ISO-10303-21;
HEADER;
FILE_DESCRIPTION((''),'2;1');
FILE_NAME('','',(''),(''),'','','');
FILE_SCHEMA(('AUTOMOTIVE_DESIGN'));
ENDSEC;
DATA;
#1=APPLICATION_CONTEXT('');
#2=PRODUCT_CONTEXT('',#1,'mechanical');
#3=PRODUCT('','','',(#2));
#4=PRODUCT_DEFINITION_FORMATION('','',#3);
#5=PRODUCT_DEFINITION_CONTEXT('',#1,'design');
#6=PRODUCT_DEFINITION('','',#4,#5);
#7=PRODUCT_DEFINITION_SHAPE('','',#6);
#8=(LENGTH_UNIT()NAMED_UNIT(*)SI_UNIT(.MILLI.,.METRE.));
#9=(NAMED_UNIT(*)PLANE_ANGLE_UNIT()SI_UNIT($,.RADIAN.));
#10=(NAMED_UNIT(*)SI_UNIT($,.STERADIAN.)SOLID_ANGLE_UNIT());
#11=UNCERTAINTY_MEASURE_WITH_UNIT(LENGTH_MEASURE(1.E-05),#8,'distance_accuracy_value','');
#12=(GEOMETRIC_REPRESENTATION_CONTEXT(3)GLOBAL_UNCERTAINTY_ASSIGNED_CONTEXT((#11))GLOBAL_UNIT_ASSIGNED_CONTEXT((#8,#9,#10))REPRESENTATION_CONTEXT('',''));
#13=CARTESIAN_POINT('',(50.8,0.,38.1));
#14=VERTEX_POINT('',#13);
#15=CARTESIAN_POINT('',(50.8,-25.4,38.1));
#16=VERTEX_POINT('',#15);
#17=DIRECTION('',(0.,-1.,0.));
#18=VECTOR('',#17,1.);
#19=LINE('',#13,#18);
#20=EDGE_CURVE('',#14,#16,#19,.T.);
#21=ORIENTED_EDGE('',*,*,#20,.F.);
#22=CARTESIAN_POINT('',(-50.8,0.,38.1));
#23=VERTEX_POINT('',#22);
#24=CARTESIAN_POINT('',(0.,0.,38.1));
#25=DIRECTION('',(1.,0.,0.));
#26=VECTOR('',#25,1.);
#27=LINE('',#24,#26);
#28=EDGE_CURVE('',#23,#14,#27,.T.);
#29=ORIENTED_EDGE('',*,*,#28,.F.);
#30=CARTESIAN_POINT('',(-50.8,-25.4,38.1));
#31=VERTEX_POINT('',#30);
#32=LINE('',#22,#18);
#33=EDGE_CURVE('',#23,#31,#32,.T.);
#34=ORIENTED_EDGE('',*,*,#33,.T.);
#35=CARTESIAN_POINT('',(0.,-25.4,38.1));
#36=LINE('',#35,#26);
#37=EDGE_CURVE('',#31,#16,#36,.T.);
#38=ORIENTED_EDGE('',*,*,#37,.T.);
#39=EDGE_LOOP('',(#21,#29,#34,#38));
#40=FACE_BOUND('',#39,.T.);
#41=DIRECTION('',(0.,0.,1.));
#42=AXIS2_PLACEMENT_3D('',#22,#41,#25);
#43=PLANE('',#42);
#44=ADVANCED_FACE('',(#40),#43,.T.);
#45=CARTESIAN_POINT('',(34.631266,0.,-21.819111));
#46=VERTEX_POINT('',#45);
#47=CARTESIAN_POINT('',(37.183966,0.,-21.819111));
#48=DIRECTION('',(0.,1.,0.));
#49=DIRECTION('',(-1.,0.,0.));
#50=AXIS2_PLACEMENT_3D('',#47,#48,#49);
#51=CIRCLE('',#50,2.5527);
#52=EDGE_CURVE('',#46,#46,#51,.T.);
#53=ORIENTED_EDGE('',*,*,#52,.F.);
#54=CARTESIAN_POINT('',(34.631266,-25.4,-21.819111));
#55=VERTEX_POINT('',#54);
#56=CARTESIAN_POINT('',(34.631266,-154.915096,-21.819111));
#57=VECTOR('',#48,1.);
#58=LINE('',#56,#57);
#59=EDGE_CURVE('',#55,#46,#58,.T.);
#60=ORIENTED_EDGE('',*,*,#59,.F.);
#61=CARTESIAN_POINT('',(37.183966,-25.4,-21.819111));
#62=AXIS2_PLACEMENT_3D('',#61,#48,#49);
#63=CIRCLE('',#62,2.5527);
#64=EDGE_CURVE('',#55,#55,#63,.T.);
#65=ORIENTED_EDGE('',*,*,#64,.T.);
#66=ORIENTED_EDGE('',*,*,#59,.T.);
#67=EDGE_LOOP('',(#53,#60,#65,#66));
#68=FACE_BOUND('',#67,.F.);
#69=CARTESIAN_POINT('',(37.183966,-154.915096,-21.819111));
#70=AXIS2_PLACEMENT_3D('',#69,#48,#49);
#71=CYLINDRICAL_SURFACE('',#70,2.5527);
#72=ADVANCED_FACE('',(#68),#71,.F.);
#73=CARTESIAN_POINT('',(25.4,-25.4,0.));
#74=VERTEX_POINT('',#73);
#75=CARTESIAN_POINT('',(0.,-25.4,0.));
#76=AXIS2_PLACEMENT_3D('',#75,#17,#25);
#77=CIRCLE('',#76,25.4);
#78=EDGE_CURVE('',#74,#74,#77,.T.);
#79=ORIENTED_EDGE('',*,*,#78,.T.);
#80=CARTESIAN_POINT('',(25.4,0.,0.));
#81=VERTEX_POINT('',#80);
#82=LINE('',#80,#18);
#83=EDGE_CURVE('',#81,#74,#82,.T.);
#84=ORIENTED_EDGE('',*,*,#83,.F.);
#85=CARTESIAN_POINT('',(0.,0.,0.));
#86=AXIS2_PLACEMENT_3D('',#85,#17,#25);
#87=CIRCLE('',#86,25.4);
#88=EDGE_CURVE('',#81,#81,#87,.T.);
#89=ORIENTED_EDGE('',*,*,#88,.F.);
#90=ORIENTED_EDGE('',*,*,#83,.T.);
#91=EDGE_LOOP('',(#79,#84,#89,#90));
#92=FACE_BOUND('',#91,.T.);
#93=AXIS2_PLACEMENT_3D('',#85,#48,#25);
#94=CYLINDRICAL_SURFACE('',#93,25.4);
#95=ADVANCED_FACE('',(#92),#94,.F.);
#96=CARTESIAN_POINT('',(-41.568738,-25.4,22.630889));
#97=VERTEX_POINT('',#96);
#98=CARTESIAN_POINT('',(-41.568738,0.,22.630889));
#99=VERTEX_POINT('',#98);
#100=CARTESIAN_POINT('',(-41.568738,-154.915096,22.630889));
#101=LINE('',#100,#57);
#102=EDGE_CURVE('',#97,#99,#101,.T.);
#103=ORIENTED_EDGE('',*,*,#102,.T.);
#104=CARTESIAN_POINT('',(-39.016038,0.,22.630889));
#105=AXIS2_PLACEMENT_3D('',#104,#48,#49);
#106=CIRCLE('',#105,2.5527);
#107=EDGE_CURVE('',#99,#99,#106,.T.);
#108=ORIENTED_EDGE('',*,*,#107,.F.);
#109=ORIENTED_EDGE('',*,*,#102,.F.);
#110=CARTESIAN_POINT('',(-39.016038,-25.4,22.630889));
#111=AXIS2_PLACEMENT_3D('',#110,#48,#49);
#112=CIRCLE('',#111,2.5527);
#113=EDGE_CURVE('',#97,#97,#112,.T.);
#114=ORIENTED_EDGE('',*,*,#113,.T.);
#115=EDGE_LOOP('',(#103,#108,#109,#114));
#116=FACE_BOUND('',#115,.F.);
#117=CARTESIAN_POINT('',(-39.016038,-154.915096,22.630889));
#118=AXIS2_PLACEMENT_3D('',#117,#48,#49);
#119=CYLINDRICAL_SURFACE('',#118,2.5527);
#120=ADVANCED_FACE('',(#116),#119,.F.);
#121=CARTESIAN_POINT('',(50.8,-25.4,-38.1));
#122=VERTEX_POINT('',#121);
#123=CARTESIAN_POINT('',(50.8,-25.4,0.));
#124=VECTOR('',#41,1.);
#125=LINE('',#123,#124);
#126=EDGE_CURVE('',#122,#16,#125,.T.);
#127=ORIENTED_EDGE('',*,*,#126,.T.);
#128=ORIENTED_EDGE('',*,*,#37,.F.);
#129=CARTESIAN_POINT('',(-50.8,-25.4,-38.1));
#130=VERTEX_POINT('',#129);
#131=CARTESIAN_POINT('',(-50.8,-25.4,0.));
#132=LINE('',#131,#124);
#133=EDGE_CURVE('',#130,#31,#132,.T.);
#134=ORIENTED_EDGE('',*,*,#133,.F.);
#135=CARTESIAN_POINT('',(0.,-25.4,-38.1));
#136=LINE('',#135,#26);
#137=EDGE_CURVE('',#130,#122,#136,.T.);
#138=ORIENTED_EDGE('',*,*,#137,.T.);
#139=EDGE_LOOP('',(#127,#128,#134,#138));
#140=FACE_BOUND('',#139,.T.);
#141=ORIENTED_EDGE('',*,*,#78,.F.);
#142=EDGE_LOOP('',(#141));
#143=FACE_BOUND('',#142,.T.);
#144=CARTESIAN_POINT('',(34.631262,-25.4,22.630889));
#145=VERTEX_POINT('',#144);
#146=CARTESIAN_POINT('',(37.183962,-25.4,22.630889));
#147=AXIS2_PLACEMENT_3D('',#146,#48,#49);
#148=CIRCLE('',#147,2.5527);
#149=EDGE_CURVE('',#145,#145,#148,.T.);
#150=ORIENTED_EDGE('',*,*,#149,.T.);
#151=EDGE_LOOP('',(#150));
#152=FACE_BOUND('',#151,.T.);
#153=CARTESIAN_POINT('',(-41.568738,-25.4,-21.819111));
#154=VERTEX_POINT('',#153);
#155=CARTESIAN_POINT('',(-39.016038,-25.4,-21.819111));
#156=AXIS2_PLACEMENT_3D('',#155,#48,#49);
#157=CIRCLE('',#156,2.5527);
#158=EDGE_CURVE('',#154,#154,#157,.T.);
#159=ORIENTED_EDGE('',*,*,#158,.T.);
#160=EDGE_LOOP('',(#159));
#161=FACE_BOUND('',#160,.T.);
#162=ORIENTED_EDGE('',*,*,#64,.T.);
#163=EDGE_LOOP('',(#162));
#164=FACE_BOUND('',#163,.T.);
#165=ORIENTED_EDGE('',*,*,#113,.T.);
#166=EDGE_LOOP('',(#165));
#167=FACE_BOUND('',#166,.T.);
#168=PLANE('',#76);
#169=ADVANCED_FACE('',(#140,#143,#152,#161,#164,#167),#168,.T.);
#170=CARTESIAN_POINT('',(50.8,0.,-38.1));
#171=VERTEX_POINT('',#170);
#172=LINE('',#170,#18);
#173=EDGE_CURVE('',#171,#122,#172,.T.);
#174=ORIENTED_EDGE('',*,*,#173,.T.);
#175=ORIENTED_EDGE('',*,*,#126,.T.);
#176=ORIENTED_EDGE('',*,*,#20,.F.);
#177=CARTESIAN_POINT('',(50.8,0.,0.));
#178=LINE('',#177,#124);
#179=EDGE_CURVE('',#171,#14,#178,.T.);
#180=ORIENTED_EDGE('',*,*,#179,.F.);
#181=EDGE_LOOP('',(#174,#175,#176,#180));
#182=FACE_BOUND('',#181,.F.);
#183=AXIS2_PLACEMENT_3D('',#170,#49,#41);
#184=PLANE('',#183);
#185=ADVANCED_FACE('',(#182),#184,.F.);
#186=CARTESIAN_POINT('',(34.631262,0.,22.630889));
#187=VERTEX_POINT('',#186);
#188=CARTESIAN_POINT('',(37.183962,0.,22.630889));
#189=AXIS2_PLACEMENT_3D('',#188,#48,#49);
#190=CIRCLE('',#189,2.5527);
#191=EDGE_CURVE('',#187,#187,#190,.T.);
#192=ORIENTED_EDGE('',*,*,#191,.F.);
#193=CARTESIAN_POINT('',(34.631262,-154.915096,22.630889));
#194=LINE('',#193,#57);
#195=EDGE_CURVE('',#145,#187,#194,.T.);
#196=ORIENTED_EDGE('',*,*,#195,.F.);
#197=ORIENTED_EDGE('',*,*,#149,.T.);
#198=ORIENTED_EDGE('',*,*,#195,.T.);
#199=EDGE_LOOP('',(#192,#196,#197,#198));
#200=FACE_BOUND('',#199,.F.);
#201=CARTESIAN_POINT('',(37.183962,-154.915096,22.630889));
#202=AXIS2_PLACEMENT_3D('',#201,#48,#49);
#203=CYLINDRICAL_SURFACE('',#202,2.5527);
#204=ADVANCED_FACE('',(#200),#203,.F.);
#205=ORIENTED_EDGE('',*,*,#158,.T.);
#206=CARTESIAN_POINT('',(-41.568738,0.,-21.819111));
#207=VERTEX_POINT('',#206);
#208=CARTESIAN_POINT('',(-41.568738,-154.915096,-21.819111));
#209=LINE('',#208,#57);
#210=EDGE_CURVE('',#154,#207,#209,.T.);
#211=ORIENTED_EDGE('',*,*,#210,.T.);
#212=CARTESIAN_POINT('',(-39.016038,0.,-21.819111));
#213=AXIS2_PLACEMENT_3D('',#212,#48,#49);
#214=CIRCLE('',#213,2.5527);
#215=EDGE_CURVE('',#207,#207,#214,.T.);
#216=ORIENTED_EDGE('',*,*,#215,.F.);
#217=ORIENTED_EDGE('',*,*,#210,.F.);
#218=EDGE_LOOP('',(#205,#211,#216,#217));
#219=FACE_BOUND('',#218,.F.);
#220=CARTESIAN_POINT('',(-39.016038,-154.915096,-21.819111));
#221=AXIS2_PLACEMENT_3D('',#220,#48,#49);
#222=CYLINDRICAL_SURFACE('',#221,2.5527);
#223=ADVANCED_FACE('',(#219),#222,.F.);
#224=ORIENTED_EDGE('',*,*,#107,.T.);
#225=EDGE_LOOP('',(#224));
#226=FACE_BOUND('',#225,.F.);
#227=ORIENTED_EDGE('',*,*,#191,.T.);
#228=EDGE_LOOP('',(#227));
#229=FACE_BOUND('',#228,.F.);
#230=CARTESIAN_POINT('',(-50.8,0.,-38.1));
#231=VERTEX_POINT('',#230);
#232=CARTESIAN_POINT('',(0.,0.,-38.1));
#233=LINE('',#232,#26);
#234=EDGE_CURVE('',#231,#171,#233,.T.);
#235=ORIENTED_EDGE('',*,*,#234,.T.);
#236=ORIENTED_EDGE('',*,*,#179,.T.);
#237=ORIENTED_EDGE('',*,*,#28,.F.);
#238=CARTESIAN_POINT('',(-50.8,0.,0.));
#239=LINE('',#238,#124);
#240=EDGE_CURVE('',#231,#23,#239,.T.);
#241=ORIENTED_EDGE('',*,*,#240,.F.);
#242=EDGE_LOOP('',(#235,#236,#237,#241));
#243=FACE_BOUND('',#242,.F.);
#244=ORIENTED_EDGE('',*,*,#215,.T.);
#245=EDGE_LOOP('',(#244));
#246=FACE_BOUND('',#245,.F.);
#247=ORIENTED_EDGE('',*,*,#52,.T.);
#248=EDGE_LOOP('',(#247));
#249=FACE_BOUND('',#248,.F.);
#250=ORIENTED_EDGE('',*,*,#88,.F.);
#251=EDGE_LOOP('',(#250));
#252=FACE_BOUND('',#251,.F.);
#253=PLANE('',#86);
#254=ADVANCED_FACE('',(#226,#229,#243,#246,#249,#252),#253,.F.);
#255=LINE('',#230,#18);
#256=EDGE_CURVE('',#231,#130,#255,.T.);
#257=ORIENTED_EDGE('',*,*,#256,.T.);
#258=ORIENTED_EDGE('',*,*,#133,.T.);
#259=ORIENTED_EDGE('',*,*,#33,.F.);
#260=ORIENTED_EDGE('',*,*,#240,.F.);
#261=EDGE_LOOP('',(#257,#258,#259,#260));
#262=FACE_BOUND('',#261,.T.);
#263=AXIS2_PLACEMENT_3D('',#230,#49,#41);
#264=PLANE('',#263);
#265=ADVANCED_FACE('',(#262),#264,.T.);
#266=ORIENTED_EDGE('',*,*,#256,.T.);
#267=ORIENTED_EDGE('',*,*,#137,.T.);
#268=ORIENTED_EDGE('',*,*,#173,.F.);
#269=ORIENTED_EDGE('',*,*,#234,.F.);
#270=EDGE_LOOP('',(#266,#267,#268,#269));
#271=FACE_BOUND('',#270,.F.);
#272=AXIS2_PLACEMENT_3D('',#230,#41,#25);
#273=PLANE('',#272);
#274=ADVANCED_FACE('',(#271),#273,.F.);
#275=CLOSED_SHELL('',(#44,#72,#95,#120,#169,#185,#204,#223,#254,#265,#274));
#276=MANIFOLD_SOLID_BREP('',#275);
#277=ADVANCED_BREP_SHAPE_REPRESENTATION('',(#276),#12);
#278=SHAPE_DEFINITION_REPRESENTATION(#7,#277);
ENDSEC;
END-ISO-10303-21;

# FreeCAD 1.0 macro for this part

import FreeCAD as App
import Part
import Sketcher

V = App.Vector
Q = App.Units.Quantity


def add_polygon(sketch, points):
    """Adds a closed chain of lines whose ends are joined by coincident constraints."""
    first, n = sketch.GeometryCount, len(points)
    for a, b in zip(points, points[1:] + points[:1]):
        sketch.addGeometry(Part.LineSegment(App.Vector(*a, 0), App.Vector(*b, 0)), False)
    for i in range(n):
        sketch.addConstraint(Sketcher.Constraint("Coincident", first + i, 2, first + (i + 1) % n, 1))

doc = App.newDocument("Part")
body = doc.addObject("PartDesign::Body", "Body")

# Sketch on XZ plane
sketch1 = doc.addObject("Sketcher::SketchObject", "Sketch")
body.addObject(sketch1)
sketch1.AttachmentSupport = (doc.XZ_Plane, [""])
sketch1.MapMode = "FlatFace"
add_polygon(sketch1, [(-50.8, 38.1), (-50.8, -38.1), (50.8, -38.1), (50.8, 38.1)])  # lines 0-3
sketch1.addGeometry(Part.Circle(V(0, 0, 0), V(0, 0, 1), 25.4), False)  # 4
sketch1.addConstraint([
    Sketcher.Constraint("Vertical", 0),
    Sketcher.Constraint("Horizontal", 1),
    Sketcher.Constraint("Vertical", 2),
    Sketcher.Constraint("Horizontal", 3),
    Sketcher.Constraint("Coincident", 4, 3, -1, 1),
    Sketcher.Constraint("Symmetric", 0, 2, 2, 2, -1, 1),
    Sketcher.Constraint("Diameter", 4, Q("2 in")),
    Sketcher.Constraint("DistanceX", 1, 1, 1, 2, Q("4 in")),
    Sketcher.Constraint("DistanceY", 0, 2, 0, 1, Q("3 in")),
])
pad1 = doc.addObject("PartDesign::Pad", "Pad")
body.addObject(pad1)
pad1.Profile = sketch1
pad1.Length = Q("1 in")

# Sketch on XZ plane
sketch2 = doc.addObject("Sketcher::SketchObject", "Sketch001")
body.addObject(sketch2)
sketch2.AttachmentSupport = (doc.XZ_Plane, [""])
sketch2.MapMode = "FlatFace"
sketch2.AttachmentOffset = App.Placement(V(0, 0, 1 * 25.4), App.Rotation())
sketch2.addGeometry([
    Part.Circle(V(-39.016038, 22.630889, 0), V(0, 0, 1), 2.5527),
    Part.Circle(V(-39.016038, -21.819111, 0), V(0, 0, 1), 2.5527),
    Part.Circle(V(37.183966, -21.819111, 0), V(0, 0, 1), 2.5527),
    Part.Circle(V(37.183962, 22.630889, 0), V(0, 0, 1), 2.5527),
], False)
sketch2.addConstraint([
    Sketcher.Constraint("Equal", 0, 1),
    Sketcher.Constraint("Equal", 1, 2),
    Sketcher.Constraint("Equal", 2, 3),
    Sketcher.Constraint("Horizontal", 1, 3, 2, 3),
    Sketcher.Constraint("Horizontal", 0, 3, 3, 3),
    Sketcher.Constraint("Vertical", 0, 3, 1, 3),
    Sketcher.Constraint("Diameter", 0, Q("0.201 in")),
    Sketcher.Constraint("DistanceX", 1, 3, 2, 3, Q("3.0000001 in")),
    Sketcher.Constraint("DistanceX", 0, 3, 3, 3, Q("3 in")),
    Sketcher.Constraint("DistanceY", 1, 3, 0, 3, Q("1.75 in")),
    Sketcher.Constraint("DistanceY", -1, 1, 0, 3, 22.630889),
    Sketcher.Constraint("DistanceX", 0, 3, -1, 1, 39.016038),
])
doc.recompute()
hole = doc.addObject("PartDesign::Hole", "Hole")
body.addObject(hole)
hole.Profile = sketch2
hole.ThreadType = "None"
hole.Diameter = Q("0.201 in")
hole.DepthType = "ThroughAll"

doc.recompute()
